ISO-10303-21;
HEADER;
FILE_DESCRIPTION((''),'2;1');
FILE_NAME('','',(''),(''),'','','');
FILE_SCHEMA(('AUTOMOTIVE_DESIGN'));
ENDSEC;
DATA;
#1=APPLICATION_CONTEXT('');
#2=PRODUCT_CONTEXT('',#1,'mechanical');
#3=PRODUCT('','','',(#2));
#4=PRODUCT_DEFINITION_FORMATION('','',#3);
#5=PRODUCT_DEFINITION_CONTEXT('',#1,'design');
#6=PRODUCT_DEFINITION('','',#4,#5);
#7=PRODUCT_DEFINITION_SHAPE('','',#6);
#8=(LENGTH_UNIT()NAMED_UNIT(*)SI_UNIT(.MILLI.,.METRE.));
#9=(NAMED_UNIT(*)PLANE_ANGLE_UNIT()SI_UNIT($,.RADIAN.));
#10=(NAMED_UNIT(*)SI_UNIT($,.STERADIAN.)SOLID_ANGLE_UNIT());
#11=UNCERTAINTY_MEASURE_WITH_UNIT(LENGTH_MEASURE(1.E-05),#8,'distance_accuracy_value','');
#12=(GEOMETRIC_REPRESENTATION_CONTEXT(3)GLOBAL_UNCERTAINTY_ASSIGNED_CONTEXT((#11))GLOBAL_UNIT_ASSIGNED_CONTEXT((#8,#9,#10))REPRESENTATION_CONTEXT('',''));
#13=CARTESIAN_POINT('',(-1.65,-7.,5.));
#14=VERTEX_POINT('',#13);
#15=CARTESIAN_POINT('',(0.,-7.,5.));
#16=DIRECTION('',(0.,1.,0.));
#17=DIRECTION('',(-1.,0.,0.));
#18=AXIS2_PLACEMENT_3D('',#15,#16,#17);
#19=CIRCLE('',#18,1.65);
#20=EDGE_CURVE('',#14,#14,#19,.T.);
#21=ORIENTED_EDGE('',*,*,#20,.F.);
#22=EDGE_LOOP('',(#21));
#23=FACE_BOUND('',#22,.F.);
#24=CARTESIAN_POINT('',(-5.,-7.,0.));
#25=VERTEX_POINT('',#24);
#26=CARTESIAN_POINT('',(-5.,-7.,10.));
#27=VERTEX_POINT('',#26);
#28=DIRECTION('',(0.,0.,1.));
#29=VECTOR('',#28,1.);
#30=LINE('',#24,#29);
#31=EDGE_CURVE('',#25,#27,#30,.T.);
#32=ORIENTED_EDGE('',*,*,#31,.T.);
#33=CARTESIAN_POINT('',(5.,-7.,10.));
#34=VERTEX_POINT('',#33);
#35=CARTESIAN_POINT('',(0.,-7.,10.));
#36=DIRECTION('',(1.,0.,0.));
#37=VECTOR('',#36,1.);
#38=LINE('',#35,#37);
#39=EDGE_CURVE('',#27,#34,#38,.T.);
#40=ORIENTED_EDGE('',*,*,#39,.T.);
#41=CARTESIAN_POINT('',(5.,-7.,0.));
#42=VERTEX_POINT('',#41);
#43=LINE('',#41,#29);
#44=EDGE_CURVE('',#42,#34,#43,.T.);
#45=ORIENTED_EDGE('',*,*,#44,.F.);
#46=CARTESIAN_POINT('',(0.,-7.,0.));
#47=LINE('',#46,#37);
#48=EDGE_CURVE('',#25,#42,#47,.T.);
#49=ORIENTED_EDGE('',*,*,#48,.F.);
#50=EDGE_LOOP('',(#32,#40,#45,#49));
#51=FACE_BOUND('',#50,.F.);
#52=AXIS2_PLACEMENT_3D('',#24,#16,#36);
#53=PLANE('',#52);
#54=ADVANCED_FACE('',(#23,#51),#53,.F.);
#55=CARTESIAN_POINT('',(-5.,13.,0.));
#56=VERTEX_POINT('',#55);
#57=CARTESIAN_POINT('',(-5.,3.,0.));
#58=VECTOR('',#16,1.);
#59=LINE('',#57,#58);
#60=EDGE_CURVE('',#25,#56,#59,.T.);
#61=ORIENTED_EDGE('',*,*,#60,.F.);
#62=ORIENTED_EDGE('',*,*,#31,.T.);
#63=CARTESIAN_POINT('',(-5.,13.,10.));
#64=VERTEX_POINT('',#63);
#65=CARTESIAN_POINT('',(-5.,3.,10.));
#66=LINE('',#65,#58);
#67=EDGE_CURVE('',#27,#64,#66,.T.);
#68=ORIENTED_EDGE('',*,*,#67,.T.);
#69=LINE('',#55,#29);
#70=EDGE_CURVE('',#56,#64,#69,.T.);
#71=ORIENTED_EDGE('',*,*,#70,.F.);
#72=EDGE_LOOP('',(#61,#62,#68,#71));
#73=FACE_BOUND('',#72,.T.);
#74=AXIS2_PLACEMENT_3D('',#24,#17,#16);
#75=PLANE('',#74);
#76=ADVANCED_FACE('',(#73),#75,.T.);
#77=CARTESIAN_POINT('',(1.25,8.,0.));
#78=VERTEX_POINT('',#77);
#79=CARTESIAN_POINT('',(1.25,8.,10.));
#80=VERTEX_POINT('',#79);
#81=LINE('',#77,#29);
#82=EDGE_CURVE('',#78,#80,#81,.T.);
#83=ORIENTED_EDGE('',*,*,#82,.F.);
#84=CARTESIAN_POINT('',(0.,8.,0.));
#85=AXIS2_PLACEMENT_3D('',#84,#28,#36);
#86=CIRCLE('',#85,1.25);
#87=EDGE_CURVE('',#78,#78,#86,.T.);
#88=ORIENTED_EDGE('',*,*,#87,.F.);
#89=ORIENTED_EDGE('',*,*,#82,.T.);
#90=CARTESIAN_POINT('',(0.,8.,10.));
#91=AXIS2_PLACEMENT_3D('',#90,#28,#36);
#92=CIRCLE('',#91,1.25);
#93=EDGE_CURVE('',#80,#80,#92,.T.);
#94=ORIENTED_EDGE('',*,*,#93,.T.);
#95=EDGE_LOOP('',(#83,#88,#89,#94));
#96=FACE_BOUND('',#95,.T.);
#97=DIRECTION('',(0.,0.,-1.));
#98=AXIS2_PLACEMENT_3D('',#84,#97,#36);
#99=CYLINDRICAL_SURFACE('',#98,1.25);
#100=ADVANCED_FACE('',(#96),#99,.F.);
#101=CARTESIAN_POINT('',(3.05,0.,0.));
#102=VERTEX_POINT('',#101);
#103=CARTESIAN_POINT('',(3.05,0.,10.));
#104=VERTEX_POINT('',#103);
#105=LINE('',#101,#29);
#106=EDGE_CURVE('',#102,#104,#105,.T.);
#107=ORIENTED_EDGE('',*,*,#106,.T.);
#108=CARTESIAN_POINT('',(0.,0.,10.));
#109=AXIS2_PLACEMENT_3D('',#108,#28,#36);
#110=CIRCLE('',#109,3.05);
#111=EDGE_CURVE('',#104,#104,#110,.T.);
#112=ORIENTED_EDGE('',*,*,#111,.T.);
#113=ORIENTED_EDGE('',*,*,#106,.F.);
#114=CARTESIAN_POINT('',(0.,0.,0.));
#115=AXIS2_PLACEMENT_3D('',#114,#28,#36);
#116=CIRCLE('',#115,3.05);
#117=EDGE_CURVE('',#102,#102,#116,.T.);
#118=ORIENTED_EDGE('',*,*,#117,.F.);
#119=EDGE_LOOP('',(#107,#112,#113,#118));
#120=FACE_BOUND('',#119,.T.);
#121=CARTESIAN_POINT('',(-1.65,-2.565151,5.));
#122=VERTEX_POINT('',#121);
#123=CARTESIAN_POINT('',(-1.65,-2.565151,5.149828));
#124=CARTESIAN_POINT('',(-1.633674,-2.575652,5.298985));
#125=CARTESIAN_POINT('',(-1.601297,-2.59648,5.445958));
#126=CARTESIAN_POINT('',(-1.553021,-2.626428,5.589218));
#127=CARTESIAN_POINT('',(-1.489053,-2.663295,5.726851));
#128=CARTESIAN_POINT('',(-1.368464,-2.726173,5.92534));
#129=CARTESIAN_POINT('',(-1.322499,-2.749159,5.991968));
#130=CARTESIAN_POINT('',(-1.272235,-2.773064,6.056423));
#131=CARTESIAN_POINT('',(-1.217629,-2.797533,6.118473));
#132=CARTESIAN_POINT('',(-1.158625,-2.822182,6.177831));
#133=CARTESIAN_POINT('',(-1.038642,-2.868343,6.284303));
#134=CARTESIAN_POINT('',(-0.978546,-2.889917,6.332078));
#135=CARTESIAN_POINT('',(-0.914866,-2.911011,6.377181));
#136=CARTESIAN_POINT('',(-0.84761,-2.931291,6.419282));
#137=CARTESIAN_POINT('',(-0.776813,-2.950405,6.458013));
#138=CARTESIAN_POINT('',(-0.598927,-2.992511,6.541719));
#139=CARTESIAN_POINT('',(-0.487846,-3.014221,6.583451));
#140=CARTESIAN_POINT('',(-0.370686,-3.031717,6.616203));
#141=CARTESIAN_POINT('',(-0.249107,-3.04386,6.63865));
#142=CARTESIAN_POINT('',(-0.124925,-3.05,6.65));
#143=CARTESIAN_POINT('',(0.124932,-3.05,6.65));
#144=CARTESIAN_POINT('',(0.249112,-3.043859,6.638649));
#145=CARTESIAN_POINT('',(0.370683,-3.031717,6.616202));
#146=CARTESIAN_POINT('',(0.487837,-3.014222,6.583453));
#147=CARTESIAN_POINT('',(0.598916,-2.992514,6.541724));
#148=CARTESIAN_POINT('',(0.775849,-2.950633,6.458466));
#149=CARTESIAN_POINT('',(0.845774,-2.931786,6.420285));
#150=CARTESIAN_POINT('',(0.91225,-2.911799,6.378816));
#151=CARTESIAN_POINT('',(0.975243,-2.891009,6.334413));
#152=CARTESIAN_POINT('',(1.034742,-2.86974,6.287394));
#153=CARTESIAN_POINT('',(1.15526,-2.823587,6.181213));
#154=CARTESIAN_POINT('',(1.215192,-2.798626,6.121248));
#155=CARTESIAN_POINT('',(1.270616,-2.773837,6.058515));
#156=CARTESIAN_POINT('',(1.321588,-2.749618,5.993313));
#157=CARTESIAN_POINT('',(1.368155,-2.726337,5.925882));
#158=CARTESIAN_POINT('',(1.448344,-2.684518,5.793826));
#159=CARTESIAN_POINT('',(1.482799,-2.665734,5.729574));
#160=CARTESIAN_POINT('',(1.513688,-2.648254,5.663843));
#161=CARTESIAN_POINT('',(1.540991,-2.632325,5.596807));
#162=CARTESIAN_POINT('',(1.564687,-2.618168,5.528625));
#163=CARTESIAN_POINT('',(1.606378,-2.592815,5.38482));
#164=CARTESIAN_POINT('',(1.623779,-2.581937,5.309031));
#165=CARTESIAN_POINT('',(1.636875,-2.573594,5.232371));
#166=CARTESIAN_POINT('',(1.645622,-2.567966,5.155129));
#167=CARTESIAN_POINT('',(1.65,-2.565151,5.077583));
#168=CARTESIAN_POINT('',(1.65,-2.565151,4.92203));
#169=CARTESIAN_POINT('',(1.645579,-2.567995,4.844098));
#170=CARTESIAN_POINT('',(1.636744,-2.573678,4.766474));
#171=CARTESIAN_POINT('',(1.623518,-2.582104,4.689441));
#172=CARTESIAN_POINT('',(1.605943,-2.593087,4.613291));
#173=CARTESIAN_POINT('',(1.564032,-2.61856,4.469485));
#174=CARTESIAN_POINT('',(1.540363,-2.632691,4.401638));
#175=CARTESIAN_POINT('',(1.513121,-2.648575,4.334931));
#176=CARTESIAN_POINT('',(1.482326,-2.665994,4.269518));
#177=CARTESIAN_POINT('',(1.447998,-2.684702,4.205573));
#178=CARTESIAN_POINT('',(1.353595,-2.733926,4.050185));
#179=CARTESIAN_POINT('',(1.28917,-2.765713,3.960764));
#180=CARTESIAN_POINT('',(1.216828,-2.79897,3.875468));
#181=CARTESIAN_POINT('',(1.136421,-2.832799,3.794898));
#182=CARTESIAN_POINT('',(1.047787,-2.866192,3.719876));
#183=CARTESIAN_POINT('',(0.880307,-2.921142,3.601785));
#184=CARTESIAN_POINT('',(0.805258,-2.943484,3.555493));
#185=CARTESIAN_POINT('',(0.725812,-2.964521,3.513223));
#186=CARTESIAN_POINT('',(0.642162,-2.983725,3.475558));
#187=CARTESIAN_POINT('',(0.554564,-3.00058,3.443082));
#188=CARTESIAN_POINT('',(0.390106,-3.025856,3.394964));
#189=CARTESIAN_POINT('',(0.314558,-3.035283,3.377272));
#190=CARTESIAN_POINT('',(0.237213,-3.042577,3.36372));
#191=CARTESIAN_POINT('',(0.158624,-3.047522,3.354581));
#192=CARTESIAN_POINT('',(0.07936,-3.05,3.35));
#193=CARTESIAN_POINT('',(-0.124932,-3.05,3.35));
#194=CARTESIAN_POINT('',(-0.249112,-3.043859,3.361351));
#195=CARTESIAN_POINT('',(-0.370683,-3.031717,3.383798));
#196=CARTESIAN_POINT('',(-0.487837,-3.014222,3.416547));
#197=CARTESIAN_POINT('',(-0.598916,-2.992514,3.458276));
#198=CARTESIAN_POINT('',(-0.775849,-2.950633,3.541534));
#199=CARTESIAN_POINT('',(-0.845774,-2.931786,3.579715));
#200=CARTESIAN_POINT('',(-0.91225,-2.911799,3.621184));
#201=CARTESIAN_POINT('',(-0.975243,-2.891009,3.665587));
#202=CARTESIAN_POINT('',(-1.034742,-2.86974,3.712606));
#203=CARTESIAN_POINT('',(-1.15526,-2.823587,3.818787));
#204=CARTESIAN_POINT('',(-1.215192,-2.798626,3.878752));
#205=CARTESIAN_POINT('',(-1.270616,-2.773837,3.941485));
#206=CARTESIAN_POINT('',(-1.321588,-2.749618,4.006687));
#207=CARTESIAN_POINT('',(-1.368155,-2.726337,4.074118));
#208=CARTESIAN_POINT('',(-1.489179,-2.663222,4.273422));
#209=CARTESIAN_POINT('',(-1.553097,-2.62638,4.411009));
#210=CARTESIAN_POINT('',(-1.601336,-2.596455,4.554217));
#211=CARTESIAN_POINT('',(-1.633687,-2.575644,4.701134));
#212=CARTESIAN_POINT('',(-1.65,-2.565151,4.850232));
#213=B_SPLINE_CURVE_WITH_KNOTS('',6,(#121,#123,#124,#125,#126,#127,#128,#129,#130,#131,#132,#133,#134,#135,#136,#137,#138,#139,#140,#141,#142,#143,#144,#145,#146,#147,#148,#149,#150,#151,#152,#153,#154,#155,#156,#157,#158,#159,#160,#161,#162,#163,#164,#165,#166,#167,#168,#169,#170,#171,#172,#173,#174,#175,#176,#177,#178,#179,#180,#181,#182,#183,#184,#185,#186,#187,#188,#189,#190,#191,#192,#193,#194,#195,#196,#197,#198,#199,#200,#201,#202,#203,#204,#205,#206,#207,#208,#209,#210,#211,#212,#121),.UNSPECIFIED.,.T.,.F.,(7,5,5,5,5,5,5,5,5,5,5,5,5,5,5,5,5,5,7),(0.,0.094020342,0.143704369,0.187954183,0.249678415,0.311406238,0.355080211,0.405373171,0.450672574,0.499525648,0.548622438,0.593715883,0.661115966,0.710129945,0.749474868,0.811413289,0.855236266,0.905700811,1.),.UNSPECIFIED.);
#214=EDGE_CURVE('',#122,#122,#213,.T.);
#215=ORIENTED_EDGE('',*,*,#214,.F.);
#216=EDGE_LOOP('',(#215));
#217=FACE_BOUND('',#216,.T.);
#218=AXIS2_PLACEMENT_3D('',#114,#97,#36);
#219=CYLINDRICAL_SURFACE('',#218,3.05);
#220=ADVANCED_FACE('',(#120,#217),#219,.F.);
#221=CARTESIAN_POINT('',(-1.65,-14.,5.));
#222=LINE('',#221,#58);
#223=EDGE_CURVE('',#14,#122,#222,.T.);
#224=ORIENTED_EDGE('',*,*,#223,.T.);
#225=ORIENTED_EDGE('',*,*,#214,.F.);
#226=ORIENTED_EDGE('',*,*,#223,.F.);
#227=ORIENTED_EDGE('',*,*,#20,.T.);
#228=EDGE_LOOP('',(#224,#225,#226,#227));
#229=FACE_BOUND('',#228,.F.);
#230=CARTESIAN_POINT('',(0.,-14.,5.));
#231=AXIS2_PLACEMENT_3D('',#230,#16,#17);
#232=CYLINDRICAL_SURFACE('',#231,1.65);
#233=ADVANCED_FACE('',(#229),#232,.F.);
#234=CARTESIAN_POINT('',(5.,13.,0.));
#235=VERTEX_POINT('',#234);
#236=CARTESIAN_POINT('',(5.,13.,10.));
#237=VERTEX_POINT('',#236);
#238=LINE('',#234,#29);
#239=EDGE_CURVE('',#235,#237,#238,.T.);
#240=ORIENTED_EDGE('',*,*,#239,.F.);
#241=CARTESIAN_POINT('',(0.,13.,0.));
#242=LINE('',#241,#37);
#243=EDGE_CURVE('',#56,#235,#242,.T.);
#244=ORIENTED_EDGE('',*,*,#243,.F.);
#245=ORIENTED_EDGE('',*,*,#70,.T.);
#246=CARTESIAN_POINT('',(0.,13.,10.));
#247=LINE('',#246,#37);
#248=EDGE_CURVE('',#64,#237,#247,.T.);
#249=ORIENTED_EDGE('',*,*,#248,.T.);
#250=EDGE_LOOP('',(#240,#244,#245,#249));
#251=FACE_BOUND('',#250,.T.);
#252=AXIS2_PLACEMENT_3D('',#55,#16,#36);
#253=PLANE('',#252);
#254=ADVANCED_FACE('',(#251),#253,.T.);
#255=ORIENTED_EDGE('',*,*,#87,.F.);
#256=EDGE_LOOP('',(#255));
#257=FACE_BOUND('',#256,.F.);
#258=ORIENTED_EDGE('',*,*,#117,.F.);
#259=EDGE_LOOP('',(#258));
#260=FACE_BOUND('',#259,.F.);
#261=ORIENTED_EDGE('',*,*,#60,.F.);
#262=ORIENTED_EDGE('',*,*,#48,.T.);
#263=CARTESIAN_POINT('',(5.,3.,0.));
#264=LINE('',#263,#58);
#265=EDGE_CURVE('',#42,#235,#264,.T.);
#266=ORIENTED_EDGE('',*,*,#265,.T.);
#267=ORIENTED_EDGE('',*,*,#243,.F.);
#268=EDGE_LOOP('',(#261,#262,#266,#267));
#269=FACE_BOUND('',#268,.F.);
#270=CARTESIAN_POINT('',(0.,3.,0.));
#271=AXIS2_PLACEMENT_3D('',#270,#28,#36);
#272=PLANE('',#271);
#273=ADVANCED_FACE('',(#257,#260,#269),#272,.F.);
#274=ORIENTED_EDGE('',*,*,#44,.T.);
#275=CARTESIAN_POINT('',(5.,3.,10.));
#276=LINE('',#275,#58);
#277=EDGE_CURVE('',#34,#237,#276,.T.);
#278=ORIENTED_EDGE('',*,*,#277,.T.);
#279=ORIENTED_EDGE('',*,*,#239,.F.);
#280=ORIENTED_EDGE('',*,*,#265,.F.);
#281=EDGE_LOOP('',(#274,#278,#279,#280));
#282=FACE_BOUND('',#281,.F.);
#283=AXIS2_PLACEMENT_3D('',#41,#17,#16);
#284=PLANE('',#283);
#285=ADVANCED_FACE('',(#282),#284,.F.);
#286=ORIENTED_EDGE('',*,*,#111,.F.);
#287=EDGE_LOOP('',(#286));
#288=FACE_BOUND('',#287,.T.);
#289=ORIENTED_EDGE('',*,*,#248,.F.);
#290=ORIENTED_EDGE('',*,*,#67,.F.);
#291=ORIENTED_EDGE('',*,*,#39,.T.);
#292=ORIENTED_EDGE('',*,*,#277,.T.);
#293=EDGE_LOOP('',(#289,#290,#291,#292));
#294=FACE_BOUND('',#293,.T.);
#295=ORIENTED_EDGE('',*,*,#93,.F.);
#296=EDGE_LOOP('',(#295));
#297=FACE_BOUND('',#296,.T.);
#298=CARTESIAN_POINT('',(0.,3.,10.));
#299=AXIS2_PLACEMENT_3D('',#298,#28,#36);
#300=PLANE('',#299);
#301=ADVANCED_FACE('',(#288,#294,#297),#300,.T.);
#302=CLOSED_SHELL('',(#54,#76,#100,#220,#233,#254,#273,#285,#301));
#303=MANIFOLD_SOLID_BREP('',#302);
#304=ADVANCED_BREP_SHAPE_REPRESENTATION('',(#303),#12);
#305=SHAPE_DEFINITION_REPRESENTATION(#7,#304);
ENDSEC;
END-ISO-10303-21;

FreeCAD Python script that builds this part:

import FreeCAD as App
import Part
import Sketcher
from FreeCAD import Vector
Q = App.Units.Quantity

doc = App.newDocument("Part")
body = doc.addObject("PartDesign::Body", "Body")

# Sketch on XY plane
sketch1 = body.newObject("Sketcher::SketchObject", "Sketch")
sketch1.AttachmentSupport = (doc.getObject("XY_Plane"), [""])
sketch1.MapMode = "FlatFace"
sketch1.addGeometry([
    Part.LineSegment(Vector(-5, 13, 0), Vector(-5, -7, 0)),  # 0
    Part.LineSegment(Vector(-5, -7, 0), Vector(5, -7, 0)),  # 1
    Part.LineSegment(Vector(5, -7, 0), Vector(5, 13, 0)),  # 2
    Part.LineSegment(Vector(5, 13, 0), Vector(-5, 13, 0)),  # 3
    Part.Circle(Vector(0, 0, 0), Vector(0, 0, 1), 3),  # 4
    Part.Circle(Vector(0, 8, 0), Vector(0, 0, 1), 1.2),  # 5
], False)
sketch1.addConstraint([
    Sketcher.Constraint("Coincident", 0, 2, 1, 1),
    Sketcher.Constraint("Coincident", 1, 2, 2, 1),
    Sketcher.Constraint("Coincident", 2, 2, 3, 1),
    Sketcher.Constraint("Coincident", 3, 2, 0, 1),
    Sketcher.Constraint("Vertical", 0),
    Sketcher.Constraint("Horizontal", 1),
    Sketcher.Constraint("Vertical", 2),
    Sketcher.Constraint("Horizontal", 3),
    Sketcher.Constraint("Coincident", 4, 3, -1, 1),
    Sketcher.Constraint("PointOnObject", 5, 3, -2),
    Sketcher.Constraint("Diameter", 4, Q("6.1 mm")),
    Sketcher.Constraint("Diameter", 5, Q("2.5 mm")),
    Sketcher.Constraint("DistanceX", 1, 1, 1, 2, Q("10 mm")),
    Sketcher.Constraint("DistanceY", 0, 2, 0, 1, Q("20 mm")),
    Sketcher.Constraint("DistanceY", -1, 1, 5, 3, Q("8 mm")),
    Sketcher.Constraint("DistanceX", 0, 2, -1, 1, Q("5 mm")),
    Sketcher.Constraint("DistanceY", 0, 2, -1, 1, Q("7 mm")),
])
pad1 = body.newObject("PartDesign::Pad", "Pad")
pad1.Profile = sketch1
pad1.Length = 10

# Sketch on XZ plane
sketch2 = body.newObject("Sketcher::SketchObject", "Sketch001")
sketch2.AttachmentSupport = (doc.getObject("XZ_Plane"), [""])
sketch2.MapMode = "FlatFace"
sketch2.AttachmentOffset = App.Placement(Vector(0, 0, 7), App.Rotation())
sketch2.addGeometry(Part.Circle(Vector(0, 5, 0), Vector(0, 0, 1), 1.6), False)
sketch2.addConstraint([
    Sketcher.Constraint("PointOnObject", 0, 3, -2),
    Sketcher.Constraint("Diameter", 0, Q("3.3 mm")),
    Sketcher.Constraint("DistanceY", -1, 1, 0, 3, Q("5 mm")),
])
doc.recompute()
hole = body.newObject("PartDesign::Hole", "Hole")
hole.Profile = sketch2
hole.ThreadType = "None"
hole.Diameter = 3.3
hole.DepthType = "Dimension"
hole.Depth = 7
hole.DrillPoint = "Flat"

doc.recompute()
